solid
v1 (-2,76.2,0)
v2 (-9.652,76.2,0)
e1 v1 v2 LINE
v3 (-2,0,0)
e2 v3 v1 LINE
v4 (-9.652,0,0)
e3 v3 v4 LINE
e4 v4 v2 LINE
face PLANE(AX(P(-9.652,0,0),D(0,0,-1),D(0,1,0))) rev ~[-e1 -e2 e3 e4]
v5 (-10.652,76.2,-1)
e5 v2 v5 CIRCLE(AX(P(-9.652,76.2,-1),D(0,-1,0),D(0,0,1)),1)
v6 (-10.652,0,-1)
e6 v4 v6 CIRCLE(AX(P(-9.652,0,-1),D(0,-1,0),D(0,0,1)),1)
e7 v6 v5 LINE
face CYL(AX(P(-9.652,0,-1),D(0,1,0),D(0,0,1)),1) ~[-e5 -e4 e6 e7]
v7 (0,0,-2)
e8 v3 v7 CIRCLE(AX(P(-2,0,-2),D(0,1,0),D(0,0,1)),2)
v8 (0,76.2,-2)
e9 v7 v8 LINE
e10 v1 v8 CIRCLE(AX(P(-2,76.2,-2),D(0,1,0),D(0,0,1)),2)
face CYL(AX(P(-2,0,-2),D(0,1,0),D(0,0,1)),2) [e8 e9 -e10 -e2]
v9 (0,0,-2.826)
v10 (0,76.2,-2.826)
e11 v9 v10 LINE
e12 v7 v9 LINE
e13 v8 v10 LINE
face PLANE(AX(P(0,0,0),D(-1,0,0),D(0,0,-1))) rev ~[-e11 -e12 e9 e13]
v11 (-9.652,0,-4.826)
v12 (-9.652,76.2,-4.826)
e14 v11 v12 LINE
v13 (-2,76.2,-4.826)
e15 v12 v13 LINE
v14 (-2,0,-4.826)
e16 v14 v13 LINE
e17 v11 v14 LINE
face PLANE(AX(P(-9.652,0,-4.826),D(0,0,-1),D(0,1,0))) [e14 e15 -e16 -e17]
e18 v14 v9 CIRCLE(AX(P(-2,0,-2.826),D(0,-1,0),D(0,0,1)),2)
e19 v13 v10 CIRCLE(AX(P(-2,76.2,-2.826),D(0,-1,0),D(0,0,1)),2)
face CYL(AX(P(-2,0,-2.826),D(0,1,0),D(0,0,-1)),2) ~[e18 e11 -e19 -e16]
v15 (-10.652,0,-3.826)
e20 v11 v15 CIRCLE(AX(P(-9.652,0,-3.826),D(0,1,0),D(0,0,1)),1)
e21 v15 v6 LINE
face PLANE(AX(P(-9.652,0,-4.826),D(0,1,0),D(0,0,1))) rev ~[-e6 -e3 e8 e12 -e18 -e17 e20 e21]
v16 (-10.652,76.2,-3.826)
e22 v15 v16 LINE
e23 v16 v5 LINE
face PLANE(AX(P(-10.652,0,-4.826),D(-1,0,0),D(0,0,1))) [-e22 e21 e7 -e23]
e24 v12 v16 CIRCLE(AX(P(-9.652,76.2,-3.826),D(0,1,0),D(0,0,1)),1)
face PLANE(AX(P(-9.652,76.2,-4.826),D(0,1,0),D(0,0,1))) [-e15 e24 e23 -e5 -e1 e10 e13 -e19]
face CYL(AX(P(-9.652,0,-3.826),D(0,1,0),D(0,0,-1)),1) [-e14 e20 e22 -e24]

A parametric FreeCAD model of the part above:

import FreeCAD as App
import Part
import Sketcher

V = App.Vector
Q = App.Units.Quantity


def edges_at(feature, points):
    """Names of the edges that pass closest to the given points."""
    edges = feature.Shape.Edges
    near = lambda p: min(range(len(edges)), key=lambda i: edges[i].distToShape(Part.Vertex(*p))[0])
    return sorted({f"Edge{near(p) + 1}" for p in points})


def add_polygon(sketch, points):
    """Adds a closed chain of lines whose ends are joined by coincident constraints."""
    first, n = sketch.GeometryCount, len(points)
    for a, b in zip(points, points[1:] + points[:1]):
        sketch.addGeometry(Part.LineSegment(App.Vector(*a, 0), App.Vector(*b, 0)), False)
    for i in range(n):
        sketch.addConstraint(Sketcher.Constraint("Coincident", first + i, 2, first + (i + 1) % n, 1))

doc = App.newDocument("Part")
body = doc.addObject("PartDesign::Body", "Body")

# Sketch on XZ plane
sketch1 = doc.addObject("Sketcher::SketchObject", "Sketch")
body.addObject(sketch1)
sketch1.AttachmentSupport = (doc.XZ_Plane, [""])
sketch1.MapMode = "FlatFace"
add_polygon(sketch1, [(-9.7, 0), (0, 0), (0, -4.8), (-9.7, -4.8)])  # lines 0-3
sketch1.addConstraint([
    Sketcher.Constraint("Horizontal", 0),
    Sketcher.Constraint("Vertical", 1),
    Sketcher.Constraint("Horizontal", 2),
    Sketcher.Constraint("Vertical", 3),
    Sketcher.Constraint("Coincident", 0, 2, -1, 1),
    Sketcher.Constraint("DistanceX", 0, 1, 0, 2, Q("0.38 in")),
    Sketcher.Constraint("DistanceY", 1, 2, 1, 1, Q("0.19 in")),
])
pad1 = doc.addObject("PartDesign::Pad", "Pad")
body.addObject(pad1)
pad1.Profile = sketch1
pad1.Length = Q("3 in")
pad1.Reversed = True
doc.recompute()

fillet = doc.addObject("PartDesign::Fillet", "Fillet")
body.addObject(fillet)
fillet.Base = (pad1, edges_at(pad1, [(0, 38.1, 0), (0, 38.1, -4.826)]))
fillet.Radius = 2

# Sketch on YZ plane
sketch2 = doc.addObject("Sketcher::SketchObject", "Sketch001")
body.addObject(sketch2)
sketch2.AttachmentSupport = (doc.YZ_Plane, [""])
sketch2.MapMode = "FlatFace"
sketch2.AttachmentOffset = App.Placement(V(0, 0, -0.38 * 25.4), App.Rotation())
add_polygon(sketch2, [(0, -4.8), (0, 0), (76.2, 0), (76.2, -4.8)])  # lines 0-3
sketch2.addConstraint([
    Sketcher.Constraint("Vertical", 0),
    Sketcher.Constraint("Horizontal", 1),
    Sketcher.Constraint("Vertical", 2),
    Sketcher.Constraint("Horizontal", 3),
    Sketcher.Constraint("Coincident", 0, 2, -1, 1),
    Sketcher.Constraint("DistanceX", 1, 1, 1, 2, Q("3 in")),
    Sketcher.Constraint("DistanceY", 0, 1, 0, 2, Q("0.19 in")),
])
pad2 = doc.addObject("PartDesign::Pad", "Pad001")
body.addObject(pad2)
pad2.Profile = sketch2
pad2.Length = 1
pad2.Reversed = True
doc.recompute()

fillet2 = doc.addObject("PartDesign::Fillet", "Fillet001")
body.addObject(fillet2)
fillet2.Base = (pad2, edges_at(pad2, [(-10.652, 38.1, -4.826), (-10.652, 38.1, 0)]))
fillet2.Radius = 1

doc.recompute()
